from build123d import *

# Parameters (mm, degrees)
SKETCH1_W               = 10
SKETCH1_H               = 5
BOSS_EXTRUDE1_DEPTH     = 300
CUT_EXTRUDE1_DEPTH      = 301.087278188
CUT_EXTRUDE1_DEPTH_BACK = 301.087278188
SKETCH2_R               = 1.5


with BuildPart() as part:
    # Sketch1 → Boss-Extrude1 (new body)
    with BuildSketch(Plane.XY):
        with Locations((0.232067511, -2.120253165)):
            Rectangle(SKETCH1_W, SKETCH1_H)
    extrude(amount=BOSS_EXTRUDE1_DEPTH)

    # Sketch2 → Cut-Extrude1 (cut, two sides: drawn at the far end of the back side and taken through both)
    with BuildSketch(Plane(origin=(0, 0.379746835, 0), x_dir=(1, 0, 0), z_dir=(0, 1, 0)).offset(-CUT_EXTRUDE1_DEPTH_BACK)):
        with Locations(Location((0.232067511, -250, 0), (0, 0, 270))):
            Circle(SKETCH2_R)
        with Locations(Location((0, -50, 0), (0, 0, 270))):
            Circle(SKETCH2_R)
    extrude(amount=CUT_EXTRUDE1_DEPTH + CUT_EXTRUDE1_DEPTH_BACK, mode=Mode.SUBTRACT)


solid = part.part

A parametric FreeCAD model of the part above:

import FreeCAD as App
import Part
import Sketcher

V = App.Vector


def add_polygon(sketch, points):
    """Adds a closed chain of lines whose ends are joined by coincident constraints."""
    first, n = sketch.GeometryCount, len(points)
    for a, b in zip(points, points[1:] + points[:1]):
        sketch.addGeometry(Part.LineSegment(App.Vector(*a, 0), App.Vector(*b, 0)), False)
    for i in range(n):
        sketch.addConstraint(Sketcher.Constraint("Coincident", first + i, 2, first + (i + 1) % n, 1))

doc = App.newDocument("Part")
body = doc.addObject("PartDesign::Body", "Body")

sketch1 = doc.addObject("Sketcher::SketchObject", "Sketch")
body.addObject(sketch1)
sketch1.AttachmentSupport = (doc.XY_Plane, [""])
sketch1.MapMode = "FlatFace"
add_polygon(sketch1, [(-4.767932, 0.379747), (-4.767932, -4.620253), (5.232068, -4.620253), (5.232068, 0.379747)])
sketch1.addConstraint(Sketcher.Constraint("Vertical", 0))
sketch1.addConstraint(Sketcher.Constraint("Horizontal", 1))
sketch1.addConstraint(Sketcher.Constraint("Vertical", 2))
sketch1.addConstraint(Sketcher.Constraint("Horizontal", 3))
sketch1.addConstraint(Sketcher.Constraint("DistanceX", 1, 1, 1, 2, 10.0))
sketch1.addConstraint(Sketcher.Constraint("DistanceY", 0, 2, 0, 1, 5.0))
sketch1.addConstraint(Sketcher.Constraint("DistanceX", 0, 2, -1, 1, 4.767932))
sketch1.addConstraint(Sketcher.Constraint("DistanceY", 0, 2, -1, 1, 4.620253))
pad1 = doc.addObject("PartDesign::Pad", "Pad")
body.addObject(pad1)
pad1.Profile = sketch1
pad1.Length = 300

sketch2 = doc.addObject("Sketcher::SketchObject", "Sketch001")
body.addObject(sketch2)
sketch2.AttachmentSupport = (doc.XZ_Plane, [""])
sketch2.MapMode = "FlatFace"
sketch2.AttachmentOffset = App.Placement(V(0, 0, -0.379747), App.Rotation())
sketch2.addGeometry(Part.Circle(V(0.232068, 250, 0), V(0, 0, 1), 1.5), False)
sketch2.addGeometry(Part.Circle(V(0, 50, 0), V(0, 0, 1), 1.5), False)
sketch2.addConstraint(Sketcher.Constraint("Equal", 0, 1))
sketch2.addConstraint(Sketcher.Constraint("PointOnObject", 1, 3, -2))
sketch2.addConstraint(Sketcher.Constraint("Diameter", 0, 3.0))
sketch2.addConstraint(Sketcher.Constraint("DistanceY", -1, 1, 0, 3, 250.0))
sketch2.addConstraint(Sketcher.Constraint("DistanceY", -1, 1, 1, 3, 50.0))
sketch2.addConstraint(Sketcher.Constraint("DistanceX", -1, 1, 0, 3, 0.232068))
pocket1 = doc.addObject("PartDesign::Pocket", "Pocket")
body.addObject(pocket1)
pocket1.Profile = sketch2
pocket1.Type = "ThroughAll"
pocket1.Midplane = True

doc.recompute()
